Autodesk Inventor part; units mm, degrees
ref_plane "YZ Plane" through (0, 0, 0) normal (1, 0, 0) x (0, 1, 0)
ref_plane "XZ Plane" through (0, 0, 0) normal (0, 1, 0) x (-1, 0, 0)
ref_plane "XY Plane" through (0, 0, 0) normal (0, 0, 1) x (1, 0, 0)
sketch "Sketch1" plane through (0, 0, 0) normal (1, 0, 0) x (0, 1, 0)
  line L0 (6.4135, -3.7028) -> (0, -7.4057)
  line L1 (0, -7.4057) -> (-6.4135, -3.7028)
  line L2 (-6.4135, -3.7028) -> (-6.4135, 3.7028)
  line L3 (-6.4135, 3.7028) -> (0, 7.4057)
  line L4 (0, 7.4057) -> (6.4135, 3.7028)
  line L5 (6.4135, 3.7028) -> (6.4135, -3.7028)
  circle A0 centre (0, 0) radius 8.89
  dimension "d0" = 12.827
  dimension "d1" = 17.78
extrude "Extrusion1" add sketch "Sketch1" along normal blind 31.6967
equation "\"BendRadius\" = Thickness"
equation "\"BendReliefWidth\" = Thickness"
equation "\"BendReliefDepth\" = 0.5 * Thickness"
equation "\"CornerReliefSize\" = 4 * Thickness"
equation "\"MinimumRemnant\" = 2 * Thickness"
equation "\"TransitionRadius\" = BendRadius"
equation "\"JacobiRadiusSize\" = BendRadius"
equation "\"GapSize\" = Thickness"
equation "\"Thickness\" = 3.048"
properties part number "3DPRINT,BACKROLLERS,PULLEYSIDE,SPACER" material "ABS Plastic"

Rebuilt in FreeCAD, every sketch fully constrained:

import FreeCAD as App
import Part
import Sketcher

V = App.Vector
Q = App.Units.Quantity

doc = App.newDocument("Part")
body = doc.addObject("PartDesign::Body", "Body")

sketch1 = body.newObject("Sketcher::SketchObject", "Sketch")
sketch1.AttachmentSupport = (doc.getObject("YZ_Plane"), [""])
sketch1.MapMode = "FlatFace"
sketch1.addGeometry(Part.Circle(V(0, 0, 0), V(0, 0, 1), 9), False)
sketch1.addGeometry(Part.LineSegment(V(6, 4, 0), V(6, -4, 0)), False)
sketch1.addGeometry(Part.LineSegment(V(6, -4, 0), V(0, -7, 0)), False)
sketch1.addGeometry(Part.LineSegment(V(0, -7, 0), V(-6, -4, 0)), False)
sketch1.addGeometry(Part.LineSegment(V(-6, -4, 0), V(-6, 4, 0)), False)
sketch1.addGeometry(Part.LineSegment(V(-6, 4, 0), V(0, 7, 0)), False)
sketch1.addGeometry(Part.LineSegment(V(0, 7, 0), V(6, 4, 0)), False)
sketch1.addConstraint(Sketcher.Constraint("Coincident", 1, 2, 2, 1))
sketch1.addConstraint(Sketcher.Constraint("Coincident", 2, 2, 3, 1))
sketch1.addConstraint(Sketcher.Constraint("Coincident", 3, 2, 4, 1))
sketch1.addConstraint(Sketcher.Constraint("Coincident", 4, 2, 5, 1))
sketch1.addConstraint(Sketcher.Constraint("Coincident", 5, 2, 6, 1))
sketch1.addConstraint(Sketcher.Constraint("Coincident", 6, 2, 1, 1))
sketch1.addConstraint(Sketcher.Constraint("Vertical", 1))
sketch1.addConstraint(Sketcher.Constraint("Vertical", 4))
sketch1.addConstraint(Sketcher.Constraint("Coincident", 0, 3, -1, 1))
sketch1.addConstraint(Sketcher.Constraint("Symmetric", 1, 2, 4, 2, -1, 1))
sketch1.addConstraint(Sketcher.Constraint("Symmetric", 2, 2, 5, 2, -1, 1))
sketch1.addConstraint(Sketcher.Constraint("PointOnObject", 2, 2, -2))
sketch1.addConstraint(Sketcher.Constraint("Parallel", 3, 6))
sketch1.addConstraint(Sketcher.Constraint("Horizontal", 1, 2, 3, 2))
sketch1.addConstraint(Sketcher.Constraint("Diameter", 0, Q("0.7 in")))
sketch1.addConstraint(Sketcher.Constraint("Angle", 2, Q("-149.9996 deg")))
sketch1.addConstraint(Sketcher.Constraint("DistanceX", 3, 2, 1, 2, Q("0.505 in")))
sketch1.addConstraint(Sketcher.Constraint("DistanceY", 1, 2, 1, 1, Q("7.4056 mm")))
pad1 = body.newObject("PartDesign::Pad", "Pad")
pad1.Profile = sketch1
pad1.Length = Q("1.2479016 in")

doc.recompute()
